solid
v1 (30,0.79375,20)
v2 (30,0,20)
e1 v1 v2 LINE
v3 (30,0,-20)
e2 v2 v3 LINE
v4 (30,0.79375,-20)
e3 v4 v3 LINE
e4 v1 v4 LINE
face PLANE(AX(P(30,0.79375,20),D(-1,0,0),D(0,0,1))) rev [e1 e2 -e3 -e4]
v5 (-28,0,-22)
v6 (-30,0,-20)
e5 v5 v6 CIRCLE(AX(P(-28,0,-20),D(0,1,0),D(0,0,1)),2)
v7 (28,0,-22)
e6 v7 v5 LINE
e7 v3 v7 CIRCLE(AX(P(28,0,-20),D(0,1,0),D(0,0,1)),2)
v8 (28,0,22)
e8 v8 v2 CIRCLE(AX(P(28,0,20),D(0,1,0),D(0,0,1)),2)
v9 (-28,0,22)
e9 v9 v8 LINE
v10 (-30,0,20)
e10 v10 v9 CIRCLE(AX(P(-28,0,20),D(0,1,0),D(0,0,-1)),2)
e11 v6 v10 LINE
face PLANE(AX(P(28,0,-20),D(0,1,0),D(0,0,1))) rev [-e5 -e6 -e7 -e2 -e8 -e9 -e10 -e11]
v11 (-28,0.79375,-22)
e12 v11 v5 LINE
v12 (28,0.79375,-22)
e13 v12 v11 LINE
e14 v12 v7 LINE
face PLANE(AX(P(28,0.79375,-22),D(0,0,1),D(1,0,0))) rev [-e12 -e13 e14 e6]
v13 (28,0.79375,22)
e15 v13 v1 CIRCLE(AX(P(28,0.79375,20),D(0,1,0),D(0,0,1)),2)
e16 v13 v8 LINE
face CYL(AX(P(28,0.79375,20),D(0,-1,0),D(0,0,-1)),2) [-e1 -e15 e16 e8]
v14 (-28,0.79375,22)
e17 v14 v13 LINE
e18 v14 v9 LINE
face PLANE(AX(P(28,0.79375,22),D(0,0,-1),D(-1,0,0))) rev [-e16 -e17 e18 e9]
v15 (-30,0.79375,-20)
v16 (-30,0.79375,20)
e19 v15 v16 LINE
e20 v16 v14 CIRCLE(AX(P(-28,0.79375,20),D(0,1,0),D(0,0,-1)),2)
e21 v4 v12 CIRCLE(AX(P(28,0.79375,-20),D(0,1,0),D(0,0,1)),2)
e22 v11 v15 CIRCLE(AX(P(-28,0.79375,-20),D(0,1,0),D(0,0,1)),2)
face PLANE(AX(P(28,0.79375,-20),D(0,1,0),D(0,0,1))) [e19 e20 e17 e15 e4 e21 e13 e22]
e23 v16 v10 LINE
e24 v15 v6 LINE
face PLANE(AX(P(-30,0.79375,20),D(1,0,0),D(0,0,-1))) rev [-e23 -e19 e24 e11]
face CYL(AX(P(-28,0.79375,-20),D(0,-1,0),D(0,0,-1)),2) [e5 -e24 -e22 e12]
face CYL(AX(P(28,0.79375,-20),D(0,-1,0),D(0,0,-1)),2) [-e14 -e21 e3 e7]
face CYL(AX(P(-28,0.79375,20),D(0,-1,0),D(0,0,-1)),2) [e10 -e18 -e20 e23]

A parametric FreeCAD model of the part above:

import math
import FreeCAD as App
import Part
import Sketcher

doc = App.newDocument("Part")
body = doc.addObject("PartDesign::Body", "Body")

# Sketch on XZ plane
sketch1 = body.newObject("Sketcher::SketchObject", "Sketch")
sketch1.AttachmentSupport = (doc.getObject("XZ_Plane"), [""])
sketch1.MapMode = "FlatFace"
sketch1.addGeometry([
    Part.LineSegment(App.Vector(-28, 22, 0), App.Vector(28, 22, 0)),  # 0
    Part.ArcOfCircle(Part.Circle(App.Vector(28, 20, 0), App.Vector(0, 0, 1), 2), math.radians(0), math.radians(90)),  # 1
    Part.LineSegment(App.Vector(30, 20, 0), App.Vector(30, -20, 0)),  # 2
    Part.ArcOfCircle(Part.Circle(App.Vector(28, -20, 0), App.Vector(0, 0, 1), 2), math.radians(-90), math.radians(0)),  # 3
    Part.LineSegment(App.Vector(28, -22, 0), App.Vector(-28, -22, 0)),  # 4
    Part.ArcOfCircle(Part.Circle(App.Vector(-28, -20, 0), App.Vector(0, 0, 1), 2), math.radians(-180), math.radians(-90)),  # 5
    Part.LineSegment(App.Vector(-30, -20, 0), App.Vector(-30, 20, 0)),  # 6
    Part.ArcOfCircle(Part.Circle(App.Vector(-28, 20, 0), App.Vector(0, 0, 1), 2), math.radians(90), math.radians(180)),  # 7
], False)
sketch1.addConstraint([
    Sketcher.Constraint("Tangent", 0, 2, 1, 2),
    Sketcher.Constraint("Tangent", 1, 1, 2, 1),
    Sketcher.Constraint("Tangent", 2, 2, 3, 2),
    Sketcher.Constraint("Tangent", 3, 1, 4, 1),
    Sketcher.Constraint("Tangent", 4, 2, 5, 2),
    Sketcher.Constraint("Tangent", 5, 1, 6, 1),
    Sketcher.Constraint("Tangent", 6, 2, 7, 2),
    Sketcher.Constraint("Tangent", 7, 1, 0, 1),
    Sketcher.Constraint("Horizontal", 0),
    Sketcher.Constraint("Vertical", 2),
    Sketcher.Constraint("Horizontal", 4),
    Sketcher.Constraint("Vertical", 6),
    Sketcher.Constraint("Equal", 1, 3),
    Sketcher.Constraint("Equal", 3, 5),
    Sketcher.Constraint("Equal", 5, 7),
    Sketcher.Constraint("Symmetric", 1, 3, 5, 3, -1, 1),
    Sketcher.Constraint("Radius", 1, 2.0),
    Sketcher.Constraint("DistanceX", 0, 1, 0, 2, 56.0),
    Sketcher.Constraint("DistanceY", 2, 2, 2, 1, 40.0),
])
pad1 = body.newObject("PartDesign::Pad", "Pad")
pad1.Profile = sketch1
pad1.Length = 0.79375
pad1.Reversed = True

doc.recompute()
